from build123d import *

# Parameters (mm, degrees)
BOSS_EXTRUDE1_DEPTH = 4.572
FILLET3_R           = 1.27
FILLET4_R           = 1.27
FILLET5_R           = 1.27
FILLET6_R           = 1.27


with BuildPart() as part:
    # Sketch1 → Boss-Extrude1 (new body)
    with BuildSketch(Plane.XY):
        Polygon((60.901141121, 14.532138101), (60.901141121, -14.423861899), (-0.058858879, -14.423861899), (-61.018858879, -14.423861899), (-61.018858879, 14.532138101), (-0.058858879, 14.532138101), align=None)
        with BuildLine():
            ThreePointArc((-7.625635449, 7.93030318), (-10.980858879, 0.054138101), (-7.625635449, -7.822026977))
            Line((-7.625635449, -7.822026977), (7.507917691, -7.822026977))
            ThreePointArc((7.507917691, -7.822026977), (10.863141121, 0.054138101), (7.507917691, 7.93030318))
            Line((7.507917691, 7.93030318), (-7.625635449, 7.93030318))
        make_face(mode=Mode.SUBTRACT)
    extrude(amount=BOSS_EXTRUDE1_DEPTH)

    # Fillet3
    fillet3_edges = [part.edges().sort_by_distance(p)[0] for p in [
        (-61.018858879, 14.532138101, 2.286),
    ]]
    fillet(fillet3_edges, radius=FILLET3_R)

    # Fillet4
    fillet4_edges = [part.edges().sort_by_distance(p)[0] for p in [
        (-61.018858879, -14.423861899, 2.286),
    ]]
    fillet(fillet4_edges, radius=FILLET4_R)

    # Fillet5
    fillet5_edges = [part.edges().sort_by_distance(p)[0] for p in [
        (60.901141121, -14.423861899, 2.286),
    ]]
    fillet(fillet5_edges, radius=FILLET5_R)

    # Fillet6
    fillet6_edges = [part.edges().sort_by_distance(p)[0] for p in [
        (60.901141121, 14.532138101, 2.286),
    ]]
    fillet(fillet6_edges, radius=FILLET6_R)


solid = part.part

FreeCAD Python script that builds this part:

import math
import FreeCAD as App
import Part
import Sketcher
from FreeCAD import Vector
Q = App.Units.Quantity


def edges_at(feature, points):
    """Names of the edges that pass closest to the given points."""
    edges = feature.Shape.Edges
    near = lambda p: min(range(len(edges)), key=lambda i: edges[i].distToShape(Part.Vertex(*p))[0])
    return sorted({f"Edge{near(p) + 1}" for p in points})

doc = App.newDocument("Part")
body = doc.addObject("PartDesign::Body", "Body")

# Sketch on XY plane
sketch1 = doc.addObject("Sketcher::SketchObject", "Sketch")
body.addObject(sketch1)
sketch1.AttachmentSupport = (doc.XY_Plane, [""])
sketch1.MapMode = "FlatFace"
sketch1.addGeometry(Part.LineSegment(Vector(61, -14, 0), Vector(61, 15, 0)), False)
sketch1.addGeometry(Part.LineSegment(Vector(61, 15, 0), Vector(-61, 15, 0)), False)
sketch1.addGeometry(Part.LineSegment(Vector(-61, 15, 0), Vector(-61, -14, 0)), False)
sketch1.addGeometry(Part.LineSegment(Vector(-61, -14, 0), Vector(61, -14, 0)), False)
sketch1.addGeometry(Part.LineSegment(Vector(-8, 8, 0), Vector(8, 8, 0)), False)
sketch1.addGeometry(Part.ArcOfCircle(Part.Circle(Vector(0, 0, 0), Vector(0, 0, 1), 11), math.radians(-46), math.radians(46)), False)
sketch1.addGeometry(Part.LineSegment(Vector(8, -8, 0), Vector(-8, -8, 0)), False)
sketch1.addGeometry(Part.ArcOfCircle(Part.Circle(Vector(0, 0, 0), Vector(0, 0, 1), 11), math.radians(134), math.radians(226)), False)
sketch1.addConstraint(Sketcher.Constraint("Coincident", 0, 2, 1, 1))
sketch1.addConstraint(Sketcher.Constraint("Coincident", 1, 2, 2, 1))
sketch1.addConstraint(Sketcher.Constraint("Coincident", 2, 2, 3, 1))
sketch1.addConstraint(Sketcher.Constraint("Coincident", 3, 2, 0, 1))
sketch1.addConstraint(Sketcher.Constraint("Coincident", 4, 2, 5, 2))
sketch1.addConstraint(Sketcher.Constraint("Coincident", 5, 1, 6, 1))
sketch1.addConstraint(Sketcher.Constraint("Coincident", 6, 2, 7, 2))
sketch1.addConstraint(Sketcher.Constraint("Coincident", 7, 1, 4, 1))
sketch1.addConstraint(Sketcher.Constraint("Vertical", 0))
sketch1.addConstraint(Sketcher.Constraint("Horizontal", 1))
sketch1.addConstraint(Sketcher.Constraint("Vertical", 2))
sketch1.addConstraint(Sketcher.Constraint("Horizontal", 3))
sketch1.addConstraint(Sketcher.Constraint("Horizontal", 4))
sketch1.addConstraint(Sketcher.Constraint("Horizontal", 6))
sketch1.addConstraint(Sketcher.Constraint("Coincident", 7, 3, 5, 3))
sketch1.addConstraint(Sketcher.Constraint("Equal", 5, 7))
sketch1.addConstraint(Sketcher.Constraint("Vertical", 4, 2, 5, 1))
sketch1.addConstraint(Sketcher.Constraint("Radius", 5, Q("0.43 in")))
sketch1.addConstraint(Sketcher.Constraint("DistanceX", 1, 2, 1, 1, Q("4.8 in")))
sketch1.addConstraint(Sketcher.Constraint("DistanceY", 0, 1, 0, 2, Q("1.14 in")))
sketch1.addConstraint(Sketcher.Constraint("DistanceX", 7, 3, 0, 2, Q("2.4 in")))
sketch1.addConstraint(Sketcher.Constraint("DistanceY", 7, 3, 0, 2, Q("0.57 in")))
sketch1.addConstraint(Sketcher.Constraint("DistanceX", 4, 1, 4, 2, Q("15.133553 mm")))
sketch1.addConstraint(Sketcher.Constraint("DistanceX", 5, 3, -1, 1, Q("0.058859 mm")))
sketch1.addConstraint(Sketcher.Constraint("DistanceY", -1, 1, 5, 3, Q("0.054138 mm")))
pad1 = doc.addObject("PartDesign::Pad", "Pad")
body.addObject(pad1)
pad1.Profile = sketch1
pad1.Length = Q("0.18 in")
doc.recompute()

fillet = doc.addObject("PartDesign::Fillet", "Fillet")
body.addObject(fillet)
fillet.Base = (pad1, edges_at(pad1, [(-61.019, 14.532, 2.286)]))
fillet.Radius = Q("0.05 in")
doc.recompute()

fillet2 = doc.addObject("PartDesign::Fillet", "Fillet001")
body.addObject(fillet2)
fillet2.Base = (fillet, edges_at(fillet, [(-61.019, -14.424, 2.286)]))
fillet2.Radius = Q("0.05 in")
doc.recompute()

fillet3 = doc.addObject("PartDesign::Fillet", "Fillet002")
body.addObject(fillet3)
fillet3.Base = (fillet2, edges_at(fillet2, [(60.901, -14.424, 2.286)]))
fillet3.Radius = Q("0.05 in")
doc.recompute()

fillet4 = doc.addObject("PartDesign::Fillet", "Fillet003")
body.addObject(fillet4)
fillet4.Base = (fillet3, edges_at(fillet3, [(60.901, 14.532, 2.286)]))
fillet4.Radius = Q("0.05 in")

doc.recompute()
